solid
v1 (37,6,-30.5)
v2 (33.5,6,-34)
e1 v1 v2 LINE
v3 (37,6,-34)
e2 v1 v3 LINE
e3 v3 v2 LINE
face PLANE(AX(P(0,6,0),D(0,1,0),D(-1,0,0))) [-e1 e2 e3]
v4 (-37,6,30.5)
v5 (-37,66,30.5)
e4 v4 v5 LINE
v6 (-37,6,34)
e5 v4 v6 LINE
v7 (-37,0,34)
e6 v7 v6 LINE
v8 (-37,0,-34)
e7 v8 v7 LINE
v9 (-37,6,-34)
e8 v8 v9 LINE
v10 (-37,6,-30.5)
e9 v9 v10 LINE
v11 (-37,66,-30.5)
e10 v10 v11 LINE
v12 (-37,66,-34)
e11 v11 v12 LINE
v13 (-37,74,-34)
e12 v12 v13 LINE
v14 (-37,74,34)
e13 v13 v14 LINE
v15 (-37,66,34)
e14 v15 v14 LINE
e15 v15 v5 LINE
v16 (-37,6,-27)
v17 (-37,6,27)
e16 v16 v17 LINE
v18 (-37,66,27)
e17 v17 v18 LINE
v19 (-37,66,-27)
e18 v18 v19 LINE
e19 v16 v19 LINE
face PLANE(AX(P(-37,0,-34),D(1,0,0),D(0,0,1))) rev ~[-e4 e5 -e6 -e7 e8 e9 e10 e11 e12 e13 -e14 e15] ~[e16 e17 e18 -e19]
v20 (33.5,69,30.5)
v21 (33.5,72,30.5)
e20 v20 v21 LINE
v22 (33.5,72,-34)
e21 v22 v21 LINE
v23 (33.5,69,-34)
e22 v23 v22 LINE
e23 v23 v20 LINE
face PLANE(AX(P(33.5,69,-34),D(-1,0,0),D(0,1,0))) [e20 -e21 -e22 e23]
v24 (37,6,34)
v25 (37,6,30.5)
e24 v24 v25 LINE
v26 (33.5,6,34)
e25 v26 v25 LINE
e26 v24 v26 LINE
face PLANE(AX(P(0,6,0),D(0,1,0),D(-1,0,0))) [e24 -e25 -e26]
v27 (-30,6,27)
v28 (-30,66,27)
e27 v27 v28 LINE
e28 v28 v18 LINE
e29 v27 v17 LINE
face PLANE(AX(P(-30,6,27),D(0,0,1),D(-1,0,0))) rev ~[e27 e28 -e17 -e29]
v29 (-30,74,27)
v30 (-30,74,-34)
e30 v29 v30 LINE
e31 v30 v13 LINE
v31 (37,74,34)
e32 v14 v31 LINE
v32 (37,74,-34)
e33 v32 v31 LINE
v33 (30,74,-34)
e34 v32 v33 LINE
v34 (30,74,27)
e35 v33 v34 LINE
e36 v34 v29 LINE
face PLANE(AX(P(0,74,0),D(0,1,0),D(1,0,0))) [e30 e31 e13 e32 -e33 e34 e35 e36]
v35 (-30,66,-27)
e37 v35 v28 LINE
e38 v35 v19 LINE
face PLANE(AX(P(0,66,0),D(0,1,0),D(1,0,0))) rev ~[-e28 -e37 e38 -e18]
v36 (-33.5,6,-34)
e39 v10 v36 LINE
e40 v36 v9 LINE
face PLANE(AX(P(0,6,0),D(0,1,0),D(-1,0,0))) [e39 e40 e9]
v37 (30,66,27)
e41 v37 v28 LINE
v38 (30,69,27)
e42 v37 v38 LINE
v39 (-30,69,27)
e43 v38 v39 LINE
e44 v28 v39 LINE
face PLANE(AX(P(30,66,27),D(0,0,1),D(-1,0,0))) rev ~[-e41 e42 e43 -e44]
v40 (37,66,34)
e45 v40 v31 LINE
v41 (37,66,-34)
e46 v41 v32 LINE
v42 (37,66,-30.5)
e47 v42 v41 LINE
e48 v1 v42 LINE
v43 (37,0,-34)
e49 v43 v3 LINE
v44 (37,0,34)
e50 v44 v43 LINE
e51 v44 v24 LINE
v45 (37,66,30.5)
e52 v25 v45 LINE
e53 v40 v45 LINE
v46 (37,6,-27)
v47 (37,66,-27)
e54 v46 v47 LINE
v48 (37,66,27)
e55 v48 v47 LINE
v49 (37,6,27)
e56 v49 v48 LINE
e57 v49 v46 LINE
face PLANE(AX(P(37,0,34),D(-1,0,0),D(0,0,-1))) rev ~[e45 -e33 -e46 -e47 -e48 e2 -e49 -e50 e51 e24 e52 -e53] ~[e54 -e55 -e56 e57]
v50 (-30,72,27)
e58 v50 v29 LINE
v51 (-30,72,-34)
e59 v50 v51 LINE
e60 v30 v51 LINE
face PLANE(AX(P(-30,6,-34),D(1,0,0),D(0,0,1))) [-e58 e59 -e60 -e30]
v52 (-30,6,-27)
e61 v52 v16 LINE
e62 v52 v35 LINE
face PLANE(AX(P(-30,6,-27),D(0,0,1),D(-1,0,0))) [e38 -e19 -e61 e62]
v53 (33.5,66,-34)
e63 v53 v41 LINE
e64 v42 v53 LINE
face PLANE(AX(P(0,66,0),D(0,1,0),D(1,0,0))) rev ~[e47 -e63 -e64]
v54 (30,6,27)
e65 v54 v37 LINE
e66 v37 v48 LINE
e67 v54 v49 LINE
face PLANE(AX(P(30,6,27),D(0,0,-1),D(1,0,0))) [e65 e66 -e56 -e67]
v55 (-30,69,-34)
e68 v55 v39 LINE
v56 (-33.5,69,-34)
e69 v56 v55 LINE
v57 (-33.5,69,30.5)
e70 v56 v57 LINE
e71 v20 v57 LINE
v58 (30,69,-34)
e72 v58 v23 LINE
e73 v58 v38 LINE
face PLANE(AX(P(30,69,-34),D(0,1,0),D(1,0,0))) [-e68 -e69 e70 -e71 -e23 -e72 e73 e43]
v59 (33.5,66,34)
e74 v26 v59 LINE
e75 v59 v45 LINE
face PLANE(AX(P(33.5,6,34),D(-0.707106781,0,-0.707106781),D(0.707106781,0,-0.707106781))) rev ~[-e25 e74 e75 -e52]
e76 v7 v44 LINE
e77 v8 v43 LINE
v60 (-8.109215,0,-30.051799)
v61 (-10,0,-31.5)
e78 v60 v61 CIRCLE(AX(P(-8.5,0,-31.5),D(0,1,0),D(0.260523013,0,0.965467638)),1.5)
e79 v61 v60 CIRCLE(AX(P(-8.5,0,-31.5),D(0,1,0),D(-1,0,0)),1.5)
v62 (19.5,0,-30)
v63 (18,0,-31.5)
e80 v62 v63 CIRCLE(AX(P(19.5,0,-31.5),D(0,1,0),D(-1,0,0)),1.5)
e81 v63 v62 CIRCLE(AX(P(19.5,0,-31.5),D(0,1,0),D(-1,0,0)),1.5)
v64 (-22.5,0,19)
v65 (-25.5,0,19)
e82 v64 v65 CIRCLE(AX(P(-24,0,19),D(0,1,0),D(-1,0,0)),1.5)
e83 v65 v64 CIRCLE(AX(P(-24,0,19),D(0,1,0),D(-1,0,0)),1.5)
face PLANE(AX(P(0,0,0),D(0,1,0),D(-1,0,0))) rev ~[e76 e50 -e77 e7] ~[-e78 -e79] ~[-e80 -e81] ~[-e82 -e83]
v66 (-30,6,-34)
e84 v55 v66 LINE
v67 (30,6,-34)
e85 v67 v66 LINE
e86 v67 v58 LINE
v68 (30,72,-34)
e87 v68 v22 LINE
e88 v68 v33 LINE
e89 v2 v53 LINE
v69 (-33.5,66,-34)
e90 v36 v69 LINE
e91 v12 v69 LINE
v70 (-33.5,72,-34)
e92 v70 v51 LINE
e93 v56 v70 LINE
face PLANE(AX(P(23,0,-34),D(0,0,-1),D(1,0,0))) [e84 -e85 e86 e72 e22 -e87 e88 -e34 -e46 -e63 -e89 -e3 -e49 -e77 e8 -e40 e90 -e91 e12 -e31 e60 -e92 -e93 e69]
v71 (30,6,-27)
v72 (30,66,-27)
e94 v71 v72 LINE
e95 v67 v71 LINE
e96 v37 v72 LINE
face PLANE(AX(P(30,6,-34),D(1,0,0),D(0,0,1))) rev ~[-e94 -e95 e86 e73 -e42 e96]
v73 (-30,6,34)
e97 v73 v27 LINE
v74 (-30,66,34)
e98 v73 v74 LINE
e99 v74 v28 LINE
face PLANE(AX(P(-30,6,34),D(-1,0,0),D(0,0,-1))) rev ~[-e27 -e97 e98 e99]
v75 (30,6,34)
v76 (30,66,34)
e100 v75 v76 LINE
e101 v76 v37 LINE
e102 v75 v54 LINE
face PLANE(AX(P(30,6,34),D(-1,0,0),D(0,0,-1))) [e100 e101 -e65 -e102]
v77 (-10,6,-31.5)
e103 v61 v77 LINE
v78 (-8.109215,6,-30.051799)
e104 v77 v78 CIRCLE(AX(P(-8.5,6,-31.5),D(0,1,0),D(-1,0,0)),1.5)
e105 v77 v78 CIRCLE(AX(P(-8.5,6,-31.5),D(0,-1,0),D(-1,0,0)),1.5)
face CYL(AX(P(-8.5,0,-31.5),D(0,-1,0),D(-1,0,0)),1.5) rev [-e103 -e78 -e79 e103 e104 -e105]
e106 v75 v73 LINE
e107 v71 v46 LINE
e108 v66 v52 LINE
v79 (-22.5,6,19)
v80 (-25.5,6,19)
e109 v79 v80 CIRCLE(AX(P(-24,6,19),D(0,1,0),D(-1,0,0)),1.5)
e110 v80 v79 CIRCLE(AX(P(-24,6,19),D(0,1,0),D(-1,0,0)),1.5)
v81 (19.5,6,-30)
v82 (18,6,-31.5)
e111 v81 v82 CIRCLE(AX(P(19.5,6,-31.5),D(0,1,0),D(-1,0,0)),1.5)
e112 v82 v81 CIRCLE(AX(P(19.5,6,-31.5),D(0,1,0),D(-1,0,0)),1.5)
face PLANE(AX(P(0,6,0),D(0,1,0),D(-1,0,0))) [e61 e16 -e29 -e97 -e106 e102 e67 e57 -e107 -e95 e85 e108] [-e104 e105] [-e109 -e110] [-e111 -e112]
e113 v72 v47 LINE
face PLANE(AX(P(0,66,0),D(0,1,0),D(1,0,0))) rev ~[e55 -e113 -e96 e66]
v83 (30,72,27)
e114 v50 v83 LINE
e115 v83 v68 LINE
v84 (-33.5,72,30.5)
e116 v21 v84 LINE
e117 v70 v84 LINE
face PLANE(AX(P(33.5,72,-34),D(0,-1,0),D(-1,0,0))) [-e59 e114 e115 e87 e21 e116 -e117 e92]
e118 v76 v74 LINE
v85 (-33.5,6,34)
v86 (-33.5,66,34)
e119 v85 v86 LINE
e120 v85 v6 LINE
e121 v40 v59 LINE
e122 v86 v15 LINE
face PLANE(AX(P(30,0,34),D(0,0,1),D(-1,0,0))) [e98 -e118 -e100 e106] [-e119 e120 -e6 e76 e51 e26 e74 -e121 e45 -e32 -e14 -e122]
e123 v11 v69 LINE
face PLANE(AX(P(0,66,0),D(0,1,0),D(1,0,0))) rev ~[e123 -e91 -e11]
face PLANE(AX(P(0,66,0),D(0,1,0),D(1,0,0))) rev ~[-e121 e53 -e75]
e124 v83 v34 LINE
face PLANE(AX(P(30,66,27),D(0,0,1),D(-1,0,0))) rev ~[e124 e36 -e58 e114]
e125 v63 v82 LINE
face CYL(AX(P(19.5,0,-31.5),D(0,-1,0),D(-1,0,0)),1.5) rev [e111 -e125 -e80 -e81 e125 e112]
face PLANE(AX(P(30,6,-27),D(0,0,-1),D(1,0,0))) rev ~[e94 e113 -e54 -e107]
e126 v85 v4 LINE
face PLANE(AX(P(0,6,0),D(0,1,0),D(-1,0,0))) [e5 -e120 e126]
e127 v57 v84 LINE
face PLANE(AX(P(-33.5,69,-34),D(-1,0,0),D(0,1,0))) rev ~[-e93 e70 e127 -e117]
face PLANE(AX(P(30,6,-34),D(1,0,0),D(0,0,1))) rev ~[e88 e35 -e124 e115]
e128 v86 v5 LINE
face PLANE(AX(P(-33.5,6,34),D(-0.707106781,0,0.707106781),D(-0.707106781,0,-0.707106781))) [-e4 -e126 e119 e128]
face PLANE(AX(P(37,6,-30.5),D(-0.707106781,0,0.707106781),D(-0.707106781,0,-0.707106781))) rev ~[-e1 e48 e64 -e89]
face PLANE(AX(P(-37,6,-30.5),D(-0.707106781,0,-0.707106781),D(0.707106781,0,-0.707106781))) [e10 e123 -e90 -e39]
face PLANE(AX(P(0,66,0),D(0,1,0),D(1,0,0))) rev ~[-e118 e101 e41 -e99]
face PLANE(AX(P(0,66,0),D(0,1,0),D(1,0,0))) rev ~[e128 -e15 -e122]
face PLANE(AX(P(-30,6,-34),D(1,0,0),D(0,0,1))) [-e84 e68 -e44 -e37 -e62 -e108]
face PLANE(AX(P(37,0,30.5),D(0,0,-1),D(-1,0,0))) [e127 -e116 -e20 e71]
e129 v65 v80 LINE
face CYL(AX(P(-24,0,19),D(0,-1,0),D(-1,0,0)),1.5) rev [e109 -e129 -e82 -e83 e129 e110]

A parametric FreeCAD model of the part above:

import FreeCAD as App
import Part
import Sketcher
Q = App.Units.Quantity

doc = App.newDocument("Part")
body = doc.addObject("PartDesign::Body", "Body")

sketch1 = body.newObject("Sketcher::SketchObject", "Sketch")
sketch1.AttachmentSupport = (doc.getObject("XZ_Plane"), [""])
sketch1.MapMode = "FlatFace"
sketch1.addGeometry([
    Part.LineSegment(App.Vector(37, 34, 0), App.Vector(37, -34, 0)),
    Part.LineSegment(App.Vector(37, -34, 0), App.Vector(-37, -34, 0)),
    Part.LineSegment(App.Vector(-37, -34, 0), App.Vector(-37, 34, 0)),
    Part.LineSegment(App.Vector(-37, 34, 0), App.Vector(37, 34, 0)),
    Part.Circle(App.Vector(19.5, -31.5, 0), App.Vector(0, 0, 1), 1.5),
    Part.Circle(App.Vector(-8.5, -31.5, 0), App.Vector(0, 0, 1), 1.5),
    Part.Circle(App.Vector(-24, 19, 0), App.Vector(0, 0, 1), 1.5),
], False)
sketch1.addConstraint([
    Sketcher.Constraint("Coincident", 0, 2, 1, 1),
    Sketcher.Constraint("Coincident", 1, 2, 2, 1),
    Sketcher.Constraint("Coincident", 2, 2, 3, 1),
    Sketcher.Constraint("Coincident", 3, 2, 0, 1),
    Sketcher.Constraint("Vertical", 0),
    Sketcher.Constraint("Horizontal", 1),
    Sketcher.Constraint("Vertical", 2),
    Sketcher.Constraint("Horizontal", 3),
    Sketcher.Constraint("Equal", 4, 5),
    Sketcher.Constraint("Equal", 5, 6),
    Sketcher.Constraint("Symmetric", 0, 2, 2, 2, -1, 1),
    Sketcher.Constraint("Horizontal", 4, 3, 5, 3),
    Sketcher.Constraint("Diameter", 4, Q("3 mm")),
    Sketcher.Constraint("DistanceY", 0, 2, 0, 1, Q("68 mm")),
    Sketcher.Constraint("DistanceX", 6, 3, -1, 1, Q("24 mm")),
    Sketcher.Constraint("DistanceX", -1, 1, 4, 3, Q("19.5 mm")),
    Sketcher.Constraint("DistanceY", 4, 3, -1, 1, Q("31.5 mm")),
    Sketcher.Constraint("DistanceX", 5, 3, -1, 1, Q("8.5 mm")),
    Sketcher.Constraint("DistanceX", 1, 2, 1, 1, Q("74 mm")),
    Sketcher.Constraint("DistanceY", -1, 1, 6, 3, Q("19 mm")),
])
pad1 = body.newObject("PartDesign::Pad", "Pad")
pad1.Profile = sketch1
pad1.Length = 6
pad1.Reversed = True

sketch2 = body.newObject("Sketcher::SketchObject", "Sketch001")
sketch2.AttachmentSupport = (doc.getObject("XZ_Plane"), [""])
sketch2.MapMode = "FlatFace"
sketch2.AttachmentOffset = App.Placement(App.Vector(0, 0, -6), App.Rotation())
sketch2.addGeometry([
    Part.LineSegment(App.Vector(37, -30.5, 0), App.Vector(33.5, -34, 0)),
    Part.LineSegment(App.Vector(33.5, -34, 0), App.Vector(30, -34, 0)),
    Part.LineSegment(App.Vector(30, -34, 0), App.Vector(30, -27, 0)),
    Part.LineSegment(App.Vector(30, -27, 0), App.Vector(37, -27, 0)),
    Part.LineSegment(App.Vector(37, -27, 0), App.Vector(37, -30.5, 0)),
    Part.LineSegment(App.Vector(-30, -27, 0), App.Vector(-30, -34, 0)),
    Part.LineSegment(App.Vector(-30, -34, 0), App.Vector(-33.5, -34, 0)),
    Part.LineSegment(App.Vector(-33.5, -34, 0), App.Vector(-37, -30.5, 0)),
    Part.LineSegment(App.Vector(-37, -30.5, 0), App.Vector(-37, -27, 0)),
    Part.LineSegment(App.Vector(-37, -27, 0), App.Vector(-30, -27, 0)),
    Part.LineSegment(App.Vector(37, 30.5, 0), App.Vector(37, 27, 0)),
    Part.LineSegment(App.Vector(37, 27, 0), App.Vector(30, 27, 0)),
    Part.LineSegment(App.Vector(30, 27, 0), App.Vector(30, 34, 0)),
    Part.LineSegment(App.Vector(30, 34, 0), App.Vector(33.5, 34, 0)),
    Part.LineSegment(App.Vector(33.5, 34, 0), App.Vector(37, 30.5, 0)),
    Part.LineSegment(App.Vector(-30, 27, 0), App.Vector(-37, 27, 0)),
    Part.LineSegment(App.Vector(-37, 27, 0), App.Vector(-37, 30.5, 0)),
    Part.LineSegment(App.Vector(-37, 30.5, 0), App.Vector(-33.5, 34, 0)),
    Part.LineSegment(App.Vector(-33.5, 34, 0), App.Vector(-30, 34, 0)),
    Part.LineSegment(App.Vector(-30, 34, 0), App.Vector(-30, 27, 0)),
], False)
sketch2.addConstraint([
    Sketcher.Constraint("Coincident", 0, 2, 1, 1),
    Sketcher.Constraint("Coincident", 1, 2, 2, 1),
    Sketcher.Constraint("Coincident", 2, 2, 3, 1),
    Sketcher.Constraint("Coincident", 3, 2, 4, 1),
    Sketcher.Constraint("Coincident", 4, 2, 0, 1),
    Sketcher.Constraint("Coincident", 5, 2, 6, 1),
    Sketcher.Constraint("Coincident", 6, 2, 7, 1),
    Sketcher.Constraint("Coincident", 7, 2, 8, 1),
    Sketcher.Constraint("Coincident", 8, 2, 9, 1),
    Sketcher.Constraint("Coincident", 9, 2, 5, 1),
    Sketcher.Constraint("Coincident", 10, 2, 11, 1),
    Sketcher.Constraint("Coincident", 11, 2, 12, 1),
    Sketcher.Constraint("Coincident", 12, 2, 13, 1),
    Sketcher.Constraint("Coincident", 13, 2, 14, 1),
    Sketcher.Constraint("Coincident", 14, 2, 10, 1),
    Sketcher.Constraint("Coincident", 15, 2, 16, 1),
    Sketcher.Constraint("Coincident", 16, 2, 17, 1),
    Sketcher.Constraint("Coincident", 17, 2, 18, 1),
    Sketcher.Constraint("Coincident", 18, 2, 19, 1),
    Sketcher.Constraint("Coincident", 19, 2, 15, 1),
    Sketcher.Constraint("Horizontal", 1),
    Sketcher.Constraint("Vertical", 2),
    Sketcher.Constraint("Horizontal", 3),
    Sketcher.Constraint("Vertical", 4),
    Sketcher.Constraint("Vertical", 5),
    Sketcher.Constraint("Horizontal", 6),
    Sketcher.Constraint("Vertical", 8),
    Sketcher.Constraint("Horizontal", 9),
    Sketcher.Constraint("Vertical", 10),
    Sketcher.Constraint("Horizontal", 11),
    Sketcher.Constraint("Vertical", 12),
    Sketcher.Constraint("Horizontal", 13),
    Sketcher.Constraint("Horizontal", 15),
    Sketcher.Constraint("Vertical", 16),
    Sketcher.Constraint("Horizontal", 18),
    Sketcher.Constraint("Vertical", 19),
    Sketcher.Constraint("Symmetric", 8, 2, 10, 2, -1, 1),
    Sketcher.Constraint("Symmetric", 5, 2, 12, 2, -1, 1),
    Sketcher.Constraint("Symmetric", 3, 2, 15, 2, -1, 1),
    Sketcher.Constraint("Symmetric", 0, 2, 17, 2, -1, 1),
    Sketcher.Constraint("Symmetric", 1, 2, 5, 2, -2),
    Sketcher.Constraint("Symmetric", 4, 2, 7, 2, -2),
    Sketcher.Constraint("Symmetric", 11, 2, 19, 2, -2),
    Sketcher.Constraint("Perpendicular", 0, 7),
    Sketcher.Constraint("Parallel", 7, 14),
    Sketcher.Constraint("Perpendicular", 14, 17),
    Sketcher.Constraint("Horizontal", 14, 2, 16, 2),
    Sketcher.Constraint("Vertical", 0, 2, 13, 2),
    Sketcher.Constraint("Equal", 15, 2),
    Sketcher.Constraint("DistanceX", 3, 1, 3, 2, Q("7 mm")),
    Sketcher.Constraint("DistanceX", 1, 2, 1, 1, Q("3.5 mm")),
    Sketcher.Constraint("DistanceY", 0, 2, -1, 1, Q("34 mm")),
    Sketcher.Constraint("DistanceX", -1, 1, 1, 2, Q("30 mm")),
])
pad2 = body.newObject("PartDesign::Pad", "Pad001")
pad2.Profile = sketch2
pad2.Length = 60
pad2.Reversed = True

sketch3 = body.newObject("Sketcher::SketchObject", "Sketch002")
sketch3.AttachmentSupport = (doc.getObject("XZ_Plane"), [""])
sketch3.MapMode = "FlatFace"
sketch3.AttachmentOffset = App.Placement(App.Vector(0, 0, -66), App.Rotation())
sketch3.addGeometry([
    Part.LineSegment(App.Vector(37, -34, 0), App.Vector(30, -34, 0)),
    Part.LineSegment(App.Vector(30, -34, 0), App.Vector(30, 27, 0)),
    Part.LineSegment(App.Vector(30, 27, 0), App.Vector(-30, 27, 0)),
    Part.LineSegment(App.Vector(-30, 27, 0), App.Vector(-30, -34, 0)),
    Part.LineSegment(App.Vector(-30, -34, 0), App.Vector(-37, -34, 0)),
    Part.LineSegment(App.Vector(-37, -34, 0), App.Vector(-37, 34, 0)),
    Part.LineSegment(App.Vector(-37, 34, 0), App.Vector(37, 34, 0)),
    Part.LineSegment(App.Vector(37, 34, 0), App.Vector(37, -34, 0)),
], False)
sketch3.addConstraint([
    Sketcher.Constraint("Coincident", 0, 2, 1, 1),
    Sketcher.Constraint("Coincident", 1, 2, 2, 1),
    Sketcher.Constraint("Coincident", 2, 2, 3, 1),
    Sketcher.Constraint("Coincident", 3, 2, 4, 1),
    Sketcher.Constraint("Coincident", 4, 2, 5, 1),
    Sketcher.Constraint("Coincident", 5, 2, 6, 1),
    Sketcher.Constraint("Coincident", 6, 2, 7, 1),
    Sketcher.Constraint("Coincident", 7, 2, 0, 1),
    Sketcher.Constraint("Horizontal", 0),
    Sketcher.Constraint("Vertical", 1),
    Sketcher.Constraint("Horizontal", 2),
    Sketcher.Constraint("Vertical", 3),
    Sketcher.Constraint("Horizontal", 4),
    Sketcher.Constraint("Vertical", 5),
    Sketcher.Constraint("Horizontal", 6),
    Sketcher.Constraint("Vertical", 7),
    Sketcher.Constraint("Symmetric", 4, 2, 6, 2, -1, 1),
    Sketcher.Constraint("Symmetric", 0, 2, 3, 2, -2),
    Sketcher.Constraint("DistanceX", 0, 2, 0, 1, Q("7 mm")),
    Sketcher.Constraint("DistanceX", 2, 2, 2, 1, Q("60 mm")),
    Sketcher.Constraint("DistanceY", 1, 1, 1, 2, Q("61 mm")),
    Sketcher.Constraint("DistanceY", 5, 1, 5, 2, Q("68 mm")),
])
pad3 = body.newObject("PartDesign::Pad", "Pad002")
pad3.Profile = sketch3
pad3.Length = 8
pad3.Reversed = True

sketch4 = body.newObject("Sketcher::SketchObject", "Sketch003")
sketch4.AttachmentSupport = (doc.getObject("XY_Plane"), [""])
sketch4.MapMode = "FlatFace"
sketch4.AttachmentOffset = App.Placement(App.Vector(0, 0, -34), App.Rotation())
sketch4.addGeometry([
    Part.LineSegment(App.Vector(33.5, 69, 0), App.Vector(-33.5, 69, 0)),
    Part.LineSegment(App.Vector(-33.5, 69, 0), App.Vector(-33.5, 72, 0)),
    Part.LineSegment(App.Vector(-33.5, 72, 0), App.Vector(33.5, 72, 0)),
    Part.LineSegment(App.Vector(33.5, 72, 0), App.Vector(33.5, 69, 0)),
], False)
sketch4.addConstraint([
    Sketcher.Constraint("Coincident", 0, 2, 1, 1),
    Sketcher.Constraint("Coincident", 1, 2, 2, 1),
    Sketcher.Constraint("Coincident", 2, 2, 3, 1),
    Sketcher.Constraint("Coincident", 3, 2, 0, 1),
    Sketcher.Constraint("Horizontal", 0),
    Sketcher.Constraint("Vertical", 1),
    Sketcher.Constraint("Horizontal", 2),
    Sketcher.Constraint("Vertical", 3),
    Sketcher.Constraint("DistanceY", 1, 1, 1, 2, Q("3 mm")),
    Sketcher.Constraint("DistanceX", 0, 2, 0, 1, Q("67 mm")),
    Sketcher.Constraint("DistanceY", -1, 1, 0, 2, Q("69 mm")),
    Sketcher.Constraint("DistanceX", 0, 2, -1, 1, Q("33.5 mm")),
])
pocket1 = body.newObject("PartDesign::Pocket", "Pocket")
pocket1.Profile = sketch4
pocket1.Length = 64.5
pocket1.Reversed = True

doc.recompute()
